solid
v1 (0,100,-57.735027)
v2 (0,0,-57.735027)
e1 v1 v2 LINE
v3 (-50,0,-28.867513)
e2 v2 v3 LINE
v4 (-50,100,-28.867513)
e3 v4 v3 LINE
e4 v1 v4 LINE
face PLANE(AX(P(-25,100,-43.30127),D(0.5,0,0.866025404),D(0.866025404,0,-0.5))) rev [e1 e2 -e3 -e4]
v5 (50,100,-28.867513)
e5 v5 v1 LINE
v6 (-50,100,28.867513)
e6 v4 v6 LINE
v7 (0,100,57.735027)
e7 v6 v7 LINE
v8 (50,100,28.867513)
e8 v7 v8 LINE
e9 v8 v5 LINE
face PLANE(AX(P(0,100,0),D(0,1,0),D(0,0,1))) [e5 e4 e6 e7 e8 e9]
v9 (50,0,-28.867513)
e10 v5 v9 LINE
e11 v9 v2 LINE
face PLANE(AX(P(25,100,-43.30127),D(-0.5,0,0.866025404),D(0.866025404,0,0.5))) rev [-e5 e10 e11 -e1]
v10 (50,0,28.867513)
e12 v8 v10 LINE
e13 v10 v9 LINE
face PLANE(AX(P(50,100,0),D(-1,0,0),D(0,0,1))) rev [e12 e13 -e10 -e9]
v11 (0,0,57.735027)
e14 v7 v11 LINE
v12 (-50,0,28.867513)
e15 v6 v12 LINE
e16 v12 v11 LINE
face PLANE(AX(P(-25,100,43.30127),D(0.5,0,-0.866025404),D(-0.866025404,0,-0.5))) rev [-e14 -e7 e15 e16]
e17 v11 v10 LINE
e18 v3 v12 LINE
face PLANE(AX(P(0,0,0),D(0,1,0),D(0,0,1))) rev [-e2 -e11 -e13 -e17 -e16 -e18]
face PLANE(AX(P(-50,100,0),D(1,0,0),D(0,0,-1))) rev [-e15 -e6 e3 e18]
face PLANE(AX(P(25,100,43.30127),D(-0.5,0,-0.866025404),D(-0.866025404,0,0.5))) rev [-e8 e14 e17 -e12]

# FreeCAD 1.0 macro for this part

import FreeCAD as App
import Part
import Sketcher

V = App.Vector
Q = App.Units.Quantity

doc = App.newDocument("Part")
body = doc.addObject("PartDesign::Body", "Body")

# Sketch on XZ plane
sketch1 = body.newObject("Sketcher::SketchObject", "Sketch")
sketch1.AttachmentSupport = (doc.getObject("XZ_Plane"), [""])
sketch1.MapMode = "FlatFace"
sketch1.addGeometry([
    Part.LineSegment(V(-50, 29, 0), V(0, 58, 0)),  # 0
    Part.LineSegment(V(0, 58, 0), V(50, 29, 0)),  # 1
    Part.LineSegment(V(50, 29, 0), V(50, -29, 0)),  # 2
    Part.LineSegment(V(50, -29, 0), V(0, -58, 0)),  # 3
    Part.LineSegment(V(0, -58, 0), V(-50, -29, 0)),  # 4
    Part.LineSegment(V(-50, -29, 0), V(-50, 29, 0)),  # 5
], False)
sketch1.addConstraint([
    Sketcher.Constraint("Coincident", 0, 2, 1, 1),
    Sketcher.Constraint("Coincident", 1, 2, 2, 1),
    Sketcher.Constraint("Coincident", 2, 2, 3, 1),
    Sketcher.Constraint("Coincident", 3, 2, 4, 1),
    Sketcher.Constraint("Coincident", 4, 2, 5, 1),
    Sketcher.Constraint("Coincident", 5, 2, 0, 1),
    Sketcher.Constraint("Vertical", 2),
    Sketcher.Constraint("Vertical", 5),
    Sketcher.Constraint("Symmetric", 0, 2, 3, 2, -1, 1),
    Sketcher.Constraint("Symmetric", 1, 2, 4, 2, -1, 1),
    Sketcher.Constraint("PointOnObject", 0, 2, -2),
    Sketcher.Constraint("Parallel", 0, 3),
    Sketcher.Constraint("Horizontal", 2, 2, 4, 2),
    Sketcher.Constraint("Angle", 0, Q("30 deg")),
    Sketcher.Constraint("DistanceX", -1, 1, 1, 2, Q("50 mm")),
    Sketcher.Constraint("DistanceY", 2, 2, 2, 1, Q("57.735027 mm")),
])
pad1 = body.newObject("PartDesign::Pad", "Pad")
pad1.Profile = sketch1
pad1.Length = 100
pad1.Reversed = True

doc.recompute()
